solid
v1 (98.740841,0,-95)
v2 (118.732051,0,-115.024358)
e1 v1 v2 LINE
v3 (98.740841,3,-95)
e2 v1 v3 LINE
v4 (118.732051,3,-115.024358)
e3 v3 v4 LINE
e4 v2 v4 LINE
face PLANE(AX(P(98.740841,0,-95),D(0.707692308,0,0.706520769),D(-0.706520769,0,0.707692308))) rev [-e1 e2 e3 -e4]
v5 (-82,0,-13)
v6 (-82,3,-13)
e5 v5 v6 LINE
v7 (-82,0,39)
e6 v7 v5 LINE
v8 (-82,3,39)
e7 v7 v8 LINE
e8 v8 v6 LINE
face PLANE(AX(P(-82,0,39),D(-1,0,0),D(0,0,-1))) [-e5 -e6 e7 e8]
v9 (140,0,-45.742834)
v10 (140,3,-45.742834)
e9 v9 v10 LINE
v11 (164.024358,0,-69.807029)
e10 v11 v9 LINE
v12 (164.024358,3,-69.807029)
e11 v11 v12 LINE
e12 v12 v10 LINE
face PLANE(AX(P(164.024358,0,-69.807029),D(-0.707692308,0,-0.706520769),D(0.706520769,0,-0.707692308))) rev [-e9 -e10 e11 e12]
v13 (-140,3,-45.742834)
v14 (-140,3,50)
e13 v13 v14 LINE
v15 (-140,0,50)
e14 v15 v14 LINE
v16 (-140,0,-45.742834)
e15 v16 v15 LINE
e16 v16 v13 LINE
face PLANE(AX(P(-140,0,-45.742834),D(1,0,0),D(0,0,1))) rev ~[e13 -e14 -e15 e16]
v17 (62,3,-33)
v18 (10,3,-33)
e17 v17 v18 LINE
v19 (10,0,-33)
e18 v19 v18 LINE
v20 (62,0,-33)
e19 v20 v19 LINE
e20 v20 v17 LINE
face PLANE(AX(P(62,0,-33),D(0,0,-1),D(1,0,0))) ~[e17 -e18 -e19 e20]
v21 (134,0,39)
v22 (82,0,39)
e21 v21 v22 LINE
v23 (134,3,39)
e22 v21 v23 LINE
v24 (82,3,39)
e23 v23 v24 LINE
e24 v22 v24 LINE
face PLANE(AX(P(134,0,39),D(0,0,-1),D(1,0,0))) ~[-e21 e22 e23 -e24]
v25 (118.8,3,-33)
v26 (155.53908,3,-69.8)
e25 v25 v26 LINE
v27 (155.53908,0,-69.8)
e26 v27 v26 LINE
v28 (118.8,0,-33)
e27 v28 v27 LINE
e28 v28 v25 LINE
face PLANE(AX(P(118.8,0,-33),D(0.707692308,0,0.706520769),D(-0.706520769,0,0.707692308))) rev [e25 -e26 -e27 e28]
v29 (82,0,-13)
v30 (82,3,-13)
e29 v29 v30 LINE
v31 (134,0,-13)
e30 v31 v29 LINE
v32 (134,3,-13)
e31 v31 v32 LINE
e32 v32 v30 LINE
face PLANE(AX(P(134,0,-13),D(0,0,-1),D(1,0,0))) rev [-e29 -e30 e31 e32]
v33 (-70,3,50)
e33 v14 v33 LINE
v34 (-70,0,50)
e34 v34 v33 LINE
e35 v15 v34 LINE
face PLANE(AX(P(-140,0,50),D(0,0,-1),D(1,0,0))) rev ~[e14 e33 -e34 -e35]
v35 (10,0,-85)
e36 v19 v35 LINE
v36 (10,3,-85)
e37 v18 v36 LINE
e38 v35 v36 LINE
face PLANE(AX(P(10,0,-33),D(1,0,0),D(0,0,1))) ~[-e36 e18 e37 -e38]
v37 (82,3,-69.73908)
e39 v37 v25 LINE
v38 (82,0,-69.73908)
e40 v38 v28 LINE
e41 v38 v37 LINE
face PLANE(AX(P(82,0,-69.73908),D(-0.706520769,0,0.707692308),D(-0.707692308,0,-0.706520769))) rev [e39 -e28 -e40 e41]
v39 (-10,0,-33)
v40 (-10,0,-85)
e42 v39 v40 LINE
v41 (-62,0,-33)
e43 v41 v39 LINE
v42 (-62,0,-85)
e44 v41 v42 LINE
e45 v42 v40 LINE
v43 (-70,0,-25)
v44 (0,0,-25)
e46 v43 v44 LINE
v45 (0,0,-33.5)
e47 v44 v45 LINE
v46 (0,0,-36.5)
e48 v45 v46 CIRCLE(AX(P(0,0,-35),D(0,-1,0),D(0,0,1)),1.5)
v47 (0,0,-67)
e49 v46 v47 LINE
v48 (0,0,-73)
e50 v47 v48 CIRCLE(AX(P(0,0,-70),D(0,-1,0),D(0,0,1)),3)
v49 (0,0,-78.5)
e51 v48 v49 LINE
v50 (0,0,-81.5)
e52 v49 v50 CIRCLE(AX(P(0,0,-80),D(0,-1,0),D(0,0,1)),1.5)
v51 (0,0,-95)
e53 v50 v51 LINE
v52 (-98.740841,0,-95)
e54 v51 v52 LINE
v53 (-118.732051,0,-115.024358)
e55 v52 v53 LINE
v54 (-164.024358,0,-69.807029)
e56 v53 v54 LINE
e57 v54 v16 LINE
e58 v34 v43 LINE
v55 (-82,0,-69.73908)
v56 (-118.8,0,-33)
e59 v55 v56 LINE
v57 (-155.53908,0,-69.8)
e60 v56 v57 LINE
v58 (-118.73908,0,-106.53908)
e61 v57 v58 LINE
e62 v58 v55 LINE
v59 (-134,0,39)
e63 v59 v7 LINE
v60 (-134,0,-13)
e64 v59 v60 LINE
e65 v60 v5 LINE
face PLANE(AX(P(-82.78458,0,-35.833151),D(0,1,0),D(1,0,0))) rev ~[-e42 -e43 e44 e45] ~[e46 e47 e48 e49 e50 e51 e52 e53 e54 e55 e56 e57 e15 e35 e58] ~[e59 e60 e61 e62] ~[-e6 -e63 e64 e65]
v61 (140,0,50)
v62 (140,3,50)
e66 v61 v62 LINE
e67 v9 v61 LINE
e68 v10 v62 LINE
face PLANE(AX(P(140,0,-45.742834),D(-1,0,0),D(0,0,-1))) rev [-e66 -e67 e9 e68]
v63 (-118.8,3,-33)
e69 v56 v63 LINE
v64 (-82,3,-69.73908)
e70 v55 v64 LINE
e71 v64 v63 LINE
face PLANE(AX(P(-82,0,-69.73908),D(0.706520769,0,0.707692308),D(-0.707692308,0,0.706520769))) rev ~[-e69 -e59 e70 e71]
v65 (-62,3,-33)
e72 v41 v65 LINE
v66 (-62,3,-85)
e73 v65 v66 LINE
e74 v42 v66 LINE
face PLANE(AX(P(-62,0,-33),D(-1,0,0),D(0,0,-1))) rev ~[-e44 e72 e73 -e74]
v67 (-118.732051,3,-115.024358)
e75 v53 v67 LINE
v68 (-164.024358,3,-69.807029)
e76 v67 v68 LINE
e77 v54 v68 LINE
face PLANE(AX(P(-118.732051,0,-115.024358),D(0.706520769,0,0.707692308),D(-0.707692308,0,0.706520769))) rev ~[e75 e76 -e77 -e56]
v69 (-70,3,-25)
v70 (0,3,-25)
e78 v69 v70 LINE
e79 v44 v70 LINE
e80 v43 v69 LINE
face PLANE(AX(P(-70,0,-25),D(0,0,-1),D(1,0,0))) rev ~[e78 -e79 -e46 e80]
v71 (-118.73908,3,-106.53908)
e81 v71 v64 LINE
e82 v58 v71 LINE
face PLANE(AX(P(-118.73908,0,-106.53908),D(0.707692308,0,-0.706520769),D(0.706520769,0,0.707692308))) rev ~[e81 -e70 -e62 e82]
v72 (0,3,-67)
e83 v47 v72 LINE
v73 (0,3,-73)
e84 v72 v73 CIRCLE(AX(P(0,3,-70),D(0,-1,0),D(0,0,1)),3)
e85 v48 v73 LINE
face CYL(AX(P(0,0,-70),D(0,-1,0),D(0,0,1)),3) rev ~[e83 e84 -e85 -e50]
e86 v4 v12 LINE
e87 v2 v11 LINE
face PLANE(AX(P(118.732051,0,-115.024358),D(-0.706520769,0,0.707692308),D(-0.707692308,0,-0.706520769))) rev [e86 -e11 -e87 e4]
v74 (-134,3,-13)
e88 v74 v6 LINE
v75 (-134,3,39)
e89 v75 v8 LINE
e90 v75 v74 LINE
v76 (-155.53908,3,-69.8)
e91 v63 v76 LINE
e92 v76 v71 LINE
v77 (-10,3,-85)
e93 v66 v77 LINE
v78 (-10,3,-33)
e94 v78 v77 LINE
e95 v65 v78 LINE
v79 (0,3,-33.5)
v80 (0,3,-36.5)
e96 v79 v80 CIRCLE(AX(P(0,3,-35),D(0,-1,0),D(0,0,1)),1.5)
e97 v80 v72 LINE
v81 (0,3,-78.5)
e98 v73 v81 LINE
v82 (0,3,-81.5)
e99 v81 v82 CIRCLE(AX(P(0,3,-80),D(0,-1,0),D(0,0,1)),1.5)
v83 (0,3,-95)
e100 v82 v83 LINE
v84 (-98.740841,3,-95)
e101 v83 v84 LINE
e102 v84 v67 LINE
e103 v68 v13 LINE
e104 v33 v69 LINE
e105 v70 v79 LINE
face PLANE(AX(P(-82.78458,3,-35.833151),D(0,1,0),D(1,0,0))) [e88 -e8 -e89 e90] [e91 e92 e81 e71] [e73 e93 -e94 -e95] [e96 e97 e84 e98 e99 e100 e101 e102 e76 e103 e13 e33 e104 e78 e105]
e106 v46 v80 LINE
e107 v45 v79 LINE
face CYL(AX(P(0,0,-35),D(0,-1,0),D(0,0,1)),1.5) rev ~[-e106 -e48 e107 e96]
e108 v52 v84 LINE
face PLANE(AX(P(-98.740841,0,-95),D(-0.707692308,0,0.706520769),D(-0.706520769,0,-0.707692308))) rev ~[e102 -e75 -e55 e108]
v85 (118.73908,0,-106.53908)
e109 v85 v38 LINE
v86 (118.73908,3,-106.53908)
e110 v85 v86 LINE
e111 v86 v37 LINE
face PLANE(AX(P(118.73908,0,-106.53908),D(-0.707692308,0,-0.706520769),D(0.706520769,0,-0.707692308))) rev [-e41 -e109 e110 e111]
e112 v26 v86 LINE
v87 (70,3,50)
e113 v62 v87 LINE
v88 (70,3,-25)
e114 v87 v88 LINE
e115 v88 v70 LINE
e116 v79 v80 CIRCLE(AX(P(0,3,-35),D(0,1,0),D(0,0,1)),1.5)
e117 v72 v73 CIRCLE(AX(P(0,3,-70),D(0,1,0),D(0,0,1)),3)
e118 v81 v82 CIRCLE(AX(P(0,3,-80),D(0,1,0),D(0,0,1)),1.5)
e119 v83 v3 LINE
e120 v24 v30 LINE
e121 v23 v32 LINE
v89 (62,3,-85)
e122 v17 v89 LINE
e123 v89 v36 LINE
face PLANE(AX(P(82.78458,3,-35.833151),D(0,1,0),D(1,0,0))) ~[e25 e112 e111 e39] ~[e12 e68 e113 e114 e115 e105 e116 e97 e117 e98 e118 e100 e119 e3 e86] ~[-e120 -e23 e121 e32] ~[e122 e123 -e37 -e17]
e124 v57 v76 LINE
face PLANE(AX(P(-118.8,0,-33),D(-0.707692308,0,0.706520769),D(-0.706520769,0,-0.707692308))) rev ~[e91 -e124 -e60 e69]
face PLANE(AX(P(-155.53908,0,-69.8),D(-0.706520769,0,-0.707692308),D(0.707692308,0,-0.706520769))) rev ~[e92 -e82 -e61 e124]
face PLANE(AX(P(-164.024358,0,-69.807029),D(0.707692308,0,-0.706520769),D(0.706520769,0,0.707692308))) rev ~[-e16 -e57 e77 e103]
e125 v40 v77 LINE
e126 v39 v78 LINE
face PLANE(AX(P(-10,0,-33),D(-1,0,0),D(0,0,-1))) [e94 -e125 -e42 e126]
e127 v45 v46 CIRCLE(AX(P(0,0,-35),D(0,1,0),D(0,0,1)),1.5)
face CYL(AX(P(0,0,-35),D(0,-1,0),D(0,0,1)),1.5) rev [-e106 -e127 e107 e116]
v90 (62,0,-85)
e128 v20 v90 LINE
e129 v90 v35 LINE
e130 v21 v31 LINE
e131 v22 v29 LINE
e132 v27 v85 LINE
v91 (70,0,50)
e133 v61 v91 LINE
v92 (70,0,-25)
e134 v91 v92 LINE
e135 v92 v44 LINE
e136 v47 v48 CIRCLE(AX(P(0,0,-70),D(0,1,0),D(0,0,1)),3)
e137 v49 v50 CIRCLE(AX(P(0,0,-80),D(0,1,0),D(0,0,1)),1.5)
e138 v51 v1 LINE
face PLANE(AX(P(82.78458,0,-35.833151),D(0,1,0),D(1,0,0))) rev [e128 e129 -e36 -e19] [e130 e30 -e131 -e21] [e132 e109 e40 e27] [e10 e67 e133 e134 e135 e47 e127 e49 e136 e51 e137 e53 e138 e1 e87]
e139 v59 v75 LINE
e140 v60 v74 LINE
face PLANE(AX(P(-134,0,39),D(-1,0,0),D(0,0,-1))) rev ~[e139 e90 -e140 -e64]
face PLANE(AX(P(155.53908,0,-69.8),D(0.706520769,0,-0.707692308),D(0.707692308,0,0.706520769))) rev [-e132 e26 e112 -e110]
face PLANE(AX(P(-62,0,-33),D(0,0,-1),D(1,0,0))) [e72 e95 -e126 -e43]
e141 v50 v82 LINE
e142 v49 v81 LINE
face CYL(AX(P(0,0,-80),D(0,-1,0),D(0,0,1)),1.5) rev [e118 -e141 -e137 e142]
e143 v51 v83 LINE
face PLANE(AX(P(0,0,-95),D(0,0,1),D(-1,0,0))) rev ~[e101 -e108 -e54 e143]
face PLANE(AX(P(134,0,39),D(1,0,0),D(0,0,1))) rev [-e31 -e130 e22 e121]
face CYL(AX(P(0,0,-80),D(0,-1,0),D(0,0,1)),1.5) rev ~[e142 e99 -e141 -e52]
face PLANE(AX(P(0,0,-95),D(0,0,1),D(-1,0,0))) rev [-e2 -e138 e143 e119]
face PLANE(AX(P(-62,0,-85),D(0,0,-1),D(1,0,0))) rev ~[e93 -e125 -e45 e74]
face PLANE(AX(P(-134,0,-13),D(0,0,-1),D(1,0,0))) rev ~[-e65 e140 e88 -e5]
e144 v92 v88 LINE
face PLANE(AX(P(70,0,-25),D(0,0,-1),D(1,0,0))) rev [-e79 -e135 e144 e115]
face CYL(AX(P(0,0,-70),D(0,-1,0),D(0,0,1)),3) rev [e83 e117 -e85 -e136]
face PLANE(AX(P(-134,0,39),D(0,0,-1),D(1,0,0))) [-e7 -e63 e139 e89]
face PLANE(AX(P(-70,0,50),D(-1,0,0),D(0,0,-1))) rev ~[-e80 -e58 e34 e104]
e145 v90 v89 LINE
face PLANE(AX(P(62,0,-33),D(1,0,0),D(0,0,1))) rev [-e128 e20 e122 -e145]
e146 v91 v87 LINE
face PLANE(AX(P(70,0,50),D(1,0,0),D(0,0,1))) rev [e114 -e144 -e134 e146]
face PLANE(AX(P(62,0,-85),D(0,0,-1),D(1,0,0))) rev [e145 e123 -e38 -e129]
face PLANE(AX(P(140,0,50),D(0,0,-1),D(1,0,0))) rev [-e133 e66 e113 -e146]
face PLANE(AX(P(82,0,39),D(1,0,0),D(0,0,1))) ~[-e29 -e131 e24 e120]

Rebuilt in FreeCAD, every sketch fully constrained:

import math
import FreeCAD as App
import Part
import Sketcher


def add_polygon(sketch, points):
    """Adds a closed chain of lines whose ends are joined by coincident constraints."""
    first, n = sketch.GeometryCount, len(points)
    for a, b in zip(points, points[1:] + points[:1]):
        sketch.addGeometry(Part.LineSegment(App.Vector(*a, 0), App.Vector(*b, 0)), False)
    for i in range(n):
        sketch.addConstraint(Sketcher.Constraint("Coincident", first + i, 2, first + (i + 1) % n, 1))

doc = App.newDocument("Part")
body = doc.addObject("PartDesign::Body", "Body")

# Sketch on XZ plane
sketch1 = body.newObject("Sketcher::SketchObject", "Sketch")
sketch1.AttachmentSupport = (doc.getObject("XZ_Plane"), [""])
sketch1.MapMode = "FlatFace"
sketch1.addGeometry(Part.LineSegment(App.Vector(-140, 50, 0), App.Vector(-70, 50, 0)), False)  # 0
sketch1.addGeometry(Part.LineSegment(App.Vector(-70, 50, 0), App.Vector(-70, -25, 0)), False)  # 1
sketch1.addGeometry(Part.LineSegment(App.Vector(-70, -25, 0), App.Vector(0, -25, 0)), False)  # 2
sketch1.addGeometry(Part.LineSegment(App.Vector(0, -25, 0), App.Vector(0, -33.5, 0)), False)  # 3
sketch1.addGeometry(Part.ArcOfCircle(Part.Circle(App.Vector(0, -35, 0), App.Vector(0, 0, 1), 1.5), math.radians(90), math.radians(270)), False)  # 4
sketch1.addGeometry(Part.LineSegment(App.Vector(0, -36.5, 0), App.Vector(0, -67, 0)), False)  # 5
sketch1.addGeometry(Part.ArcOfCircle(Part.Circle(App.Vector(0, -70, 0), App.Vector(0, 0, 1), 3), math.radians(90), math.radians(270)), False)  # 6
sketch1.addGeometry(Part.LineSegment(App.Vector(0, -73, 0), App.Vector(0, -78.5, 0)), False)  # 7
sketch1.addGeometry(Part.ArcOfCircle(Part.Circle(App.Vector(0, -80, 0), App.Vector(0, 0, 1), 1.5), math.radians(90), math.radians(270)), False)  # 8
sketch1.addGeometry(Part.LineSegment(App.Vector(0, -81.5, 0), App.Vector(0, -95, 0)), False)  # 9
sketch1.addGeometry(Part.LineSegment(App.Vector(0, -95, 0), App.Vector(-98.7, -95, 0)), False)  # 10
sketch1.addGeometry(Part.LineSegment(App.Vector(-98.7, -95, 0), App.Vector(-118.7, -115, 0)), False)  # 11
sketch1.addGeometry(Part.LineSegment(App.Vector(-118.7, -115, 0), App.Vector(-164, -69.8, 0)), False)  # 12
sketch1.addGeometry(Part.LineSegment(App.Vector(-164, -69.8, 0), App.Vector(-140, -45.7, 0)), False)  # 13
sketch1.addGeometry(Part.LineSegment(App.Vector(-140, -45.7, 0), App.Vector(-140, 50, 0)), False)  # 14
add_polygon(sketch1, [(-82, 39), (-134, 39), (-134, -13), (-82, -13)])  # lines 15-18
add_polygon(sketch1, [(-118.7, -106.5), (-82, -69.7), (-118.8, -33), (-155.5, -69.8)])  # lines 19-22
add_polygon(sketch1, [(-10, -33), (-62, -33), (-62, -85), (-10, -85)])  # lines 23-26
sketch1.addConstraint([
    Sketcher.Constraint("Coincident", 0, 2, 1, 1),
    Sketcher.Constraint("Coincident", 1, 2, 2, 1),
    Sketcher.Constraint("Coincident", 2, 2, 3, 1),
    Sketcher.Constraint("Coincident", 3, 2, 4, 1),
    Sketcher.Constraint("Coincident", 4, 2, 5, 1),
    Sketcher.Constraint("Coincident", 5, 2, 6, 1),
    Sketcher.Constraint("Coincident", 6, 2, 7, 1),
    Sketcher.Constraint("Coincident", 7, 2, 8, 1),
    Sketcher.Constraint("Coincident", 8, 2, 9, 1),
    Sketcher.Constraint("Coincident", 9, 2, 10, 1),
    Sketcher.Constraint("Coincident", 10, 2, 11, 1),
    Sketcher.Constraint("Coincident", 11, 2, 12, 1),
    Sketcher.Constraint("Coincident", 12, 2, 13, 1),
    Sketcher.Constraint("Coincident", 13, 2, 14, 1),
    Sketcher.Constraint("Coincident", 14, 2, 0, 1),
    Sketcher.Constraint("Horizontal", 0),
    Sketcher.Constraint("Vertical", 1),
    Sketcher.Constraint("Horizontal", 2),
    Sketcher.Constraint("Vertical", 3),
    Sketcher.Constraint("Vertical", 5),
    Sketcher.Constraint("Vertical", 7),
    Sketcher.Constraint("Vertical", 9),
    Sketcher.Constraint("Horizontal", 10),
    Sketcher.Constraint("Vertical", 14),
    Sketcher.Constraint("Horizontal", 15),
    Sketcher.Constraint("Vertical", 16),
    Sketcher.Constraint("Horizontal", 17),
    Sketcher.Constraint("Vertical", 18),
    Sketcher.Constraint("Horizontal", 23),
    Sketcher.Constraint("Vertical", 24),
    Sketcher.Constraint("Horizontal", 25),
    Sketcher.Constraint("Vertical", 26),
    Sketcher.Constraint("Equal", 4, 8),
    Sketcher.Constraint("PointOnObject", 4, 3, -2),
    Sketcher.Constraint("PointOnObject", 6, 3, -2),
    Sketcher.Constraint("PointOnObject", 8, 3, -2),
    Sketcher.Constraint("PointOnObject", 2, 2, -2),
    Sketcher.Constraint("PointOnObject", 4, 2, -2),
    Sketcher.Constraint("PointOnObject", 6, 2, -2),
    Sketcher.Constraint("PointOnObject", 8, 2, -2),
    Sketcher.Constraint("Perpendicular", 11, 12),
    Sketcher.Constraint("Perpendicular", 12, 13),
    Sketcher.Constraint("Parallel", 13, 19),
    Sketcher.Constraint("Perpendicular", 19, 20),
    Sketcher.Constraint("Perpendicular", 20, 21),
    Sketcher.Constraint("Perpendicular", 21, 22),
    Sketcher.Constraint("Horizontal", 20, 2, 23, 2),
    Sketcher.Constraint("Vertical", 18, 2, 19, 2),
    Sketcher.Constraint("Equal", 0, 2),
    Sketcher.Constraint("Equal", 17, 23),
    Sketcher.Constraint("Equal", 25, 16),
    Sketcher.Constraint("Equal", 18, 24),
    Sketcher.Constraint("Equal", 19, 20),
    Sketcher.Constraint("Radius", 6, 3.0),
    Sketcher.Constraint("Radius", 4, 1.5),
    Sketcher.Constraint("DistanceX", 0, 1, 0, 2, 70.0),
    Sketcher.Constraint("DistanceX", 15, 2, 15, 1, 52.0),
    Sketcher.Constraint("DistanceY", 1, 2, 1, 1, 75.0),
    Sketcher.Constraint("Distance", 12, 64.0),
    Sketcher.Constraint("Distance", 19, 52.0),
    Sketcher.Constraint("DistanceY", 3, 2, 3, 1, 8.5),
    Sketcher.Constraint("DistanceY", 5, 2, 5, 1, 30.5),
    Sketcher.Constraint("DistanceY", 7, 2, 7, 1, 5.5),
    Sketcher.Constraint("DistanceY", 9, 2, 9, 1, 13.5),
    Sketcher.Constraint("DistanceY", 4, 3, -1, 1, 35.0),
    Sketcher.Constraint("DistanceX", 15, 2, -1, 1, 134.0),
    Sketcher.Constraint("DistanceY", -1, 1, 15, 2, 39.0),
    Sketcher.Constraint("DistanceY", 20, 2, -1, 1, 33.0),
    Sketcher.Constraint("DistanceX", 23, 2, -1, 1, 62.0),
    Sketcher.Constraint("DistanceX", 20, 2, -1, 1, 118.8),
    Sketcher.Constraint("DistanceX", 10, 2, 10, 1, 98.740841),
    Sketcher.Constraint("Distance", 11, 28.295289),
])
pad1 = body.newObject("PartDesign::Pad", "Pad")
pad1.Profile = sketch1
pad1.Length = 3
pad1.Reversed = True
doc.recompute()

mirrored = body.newObject("PartDesign::Mirrored", "Mirrored")
mirrored.Originals = [pad1]
mirrored.MirrorPlane = (doc.getObject("YZ_Plane"), [""])
body.Tip = mirrored

doc.recompute()
